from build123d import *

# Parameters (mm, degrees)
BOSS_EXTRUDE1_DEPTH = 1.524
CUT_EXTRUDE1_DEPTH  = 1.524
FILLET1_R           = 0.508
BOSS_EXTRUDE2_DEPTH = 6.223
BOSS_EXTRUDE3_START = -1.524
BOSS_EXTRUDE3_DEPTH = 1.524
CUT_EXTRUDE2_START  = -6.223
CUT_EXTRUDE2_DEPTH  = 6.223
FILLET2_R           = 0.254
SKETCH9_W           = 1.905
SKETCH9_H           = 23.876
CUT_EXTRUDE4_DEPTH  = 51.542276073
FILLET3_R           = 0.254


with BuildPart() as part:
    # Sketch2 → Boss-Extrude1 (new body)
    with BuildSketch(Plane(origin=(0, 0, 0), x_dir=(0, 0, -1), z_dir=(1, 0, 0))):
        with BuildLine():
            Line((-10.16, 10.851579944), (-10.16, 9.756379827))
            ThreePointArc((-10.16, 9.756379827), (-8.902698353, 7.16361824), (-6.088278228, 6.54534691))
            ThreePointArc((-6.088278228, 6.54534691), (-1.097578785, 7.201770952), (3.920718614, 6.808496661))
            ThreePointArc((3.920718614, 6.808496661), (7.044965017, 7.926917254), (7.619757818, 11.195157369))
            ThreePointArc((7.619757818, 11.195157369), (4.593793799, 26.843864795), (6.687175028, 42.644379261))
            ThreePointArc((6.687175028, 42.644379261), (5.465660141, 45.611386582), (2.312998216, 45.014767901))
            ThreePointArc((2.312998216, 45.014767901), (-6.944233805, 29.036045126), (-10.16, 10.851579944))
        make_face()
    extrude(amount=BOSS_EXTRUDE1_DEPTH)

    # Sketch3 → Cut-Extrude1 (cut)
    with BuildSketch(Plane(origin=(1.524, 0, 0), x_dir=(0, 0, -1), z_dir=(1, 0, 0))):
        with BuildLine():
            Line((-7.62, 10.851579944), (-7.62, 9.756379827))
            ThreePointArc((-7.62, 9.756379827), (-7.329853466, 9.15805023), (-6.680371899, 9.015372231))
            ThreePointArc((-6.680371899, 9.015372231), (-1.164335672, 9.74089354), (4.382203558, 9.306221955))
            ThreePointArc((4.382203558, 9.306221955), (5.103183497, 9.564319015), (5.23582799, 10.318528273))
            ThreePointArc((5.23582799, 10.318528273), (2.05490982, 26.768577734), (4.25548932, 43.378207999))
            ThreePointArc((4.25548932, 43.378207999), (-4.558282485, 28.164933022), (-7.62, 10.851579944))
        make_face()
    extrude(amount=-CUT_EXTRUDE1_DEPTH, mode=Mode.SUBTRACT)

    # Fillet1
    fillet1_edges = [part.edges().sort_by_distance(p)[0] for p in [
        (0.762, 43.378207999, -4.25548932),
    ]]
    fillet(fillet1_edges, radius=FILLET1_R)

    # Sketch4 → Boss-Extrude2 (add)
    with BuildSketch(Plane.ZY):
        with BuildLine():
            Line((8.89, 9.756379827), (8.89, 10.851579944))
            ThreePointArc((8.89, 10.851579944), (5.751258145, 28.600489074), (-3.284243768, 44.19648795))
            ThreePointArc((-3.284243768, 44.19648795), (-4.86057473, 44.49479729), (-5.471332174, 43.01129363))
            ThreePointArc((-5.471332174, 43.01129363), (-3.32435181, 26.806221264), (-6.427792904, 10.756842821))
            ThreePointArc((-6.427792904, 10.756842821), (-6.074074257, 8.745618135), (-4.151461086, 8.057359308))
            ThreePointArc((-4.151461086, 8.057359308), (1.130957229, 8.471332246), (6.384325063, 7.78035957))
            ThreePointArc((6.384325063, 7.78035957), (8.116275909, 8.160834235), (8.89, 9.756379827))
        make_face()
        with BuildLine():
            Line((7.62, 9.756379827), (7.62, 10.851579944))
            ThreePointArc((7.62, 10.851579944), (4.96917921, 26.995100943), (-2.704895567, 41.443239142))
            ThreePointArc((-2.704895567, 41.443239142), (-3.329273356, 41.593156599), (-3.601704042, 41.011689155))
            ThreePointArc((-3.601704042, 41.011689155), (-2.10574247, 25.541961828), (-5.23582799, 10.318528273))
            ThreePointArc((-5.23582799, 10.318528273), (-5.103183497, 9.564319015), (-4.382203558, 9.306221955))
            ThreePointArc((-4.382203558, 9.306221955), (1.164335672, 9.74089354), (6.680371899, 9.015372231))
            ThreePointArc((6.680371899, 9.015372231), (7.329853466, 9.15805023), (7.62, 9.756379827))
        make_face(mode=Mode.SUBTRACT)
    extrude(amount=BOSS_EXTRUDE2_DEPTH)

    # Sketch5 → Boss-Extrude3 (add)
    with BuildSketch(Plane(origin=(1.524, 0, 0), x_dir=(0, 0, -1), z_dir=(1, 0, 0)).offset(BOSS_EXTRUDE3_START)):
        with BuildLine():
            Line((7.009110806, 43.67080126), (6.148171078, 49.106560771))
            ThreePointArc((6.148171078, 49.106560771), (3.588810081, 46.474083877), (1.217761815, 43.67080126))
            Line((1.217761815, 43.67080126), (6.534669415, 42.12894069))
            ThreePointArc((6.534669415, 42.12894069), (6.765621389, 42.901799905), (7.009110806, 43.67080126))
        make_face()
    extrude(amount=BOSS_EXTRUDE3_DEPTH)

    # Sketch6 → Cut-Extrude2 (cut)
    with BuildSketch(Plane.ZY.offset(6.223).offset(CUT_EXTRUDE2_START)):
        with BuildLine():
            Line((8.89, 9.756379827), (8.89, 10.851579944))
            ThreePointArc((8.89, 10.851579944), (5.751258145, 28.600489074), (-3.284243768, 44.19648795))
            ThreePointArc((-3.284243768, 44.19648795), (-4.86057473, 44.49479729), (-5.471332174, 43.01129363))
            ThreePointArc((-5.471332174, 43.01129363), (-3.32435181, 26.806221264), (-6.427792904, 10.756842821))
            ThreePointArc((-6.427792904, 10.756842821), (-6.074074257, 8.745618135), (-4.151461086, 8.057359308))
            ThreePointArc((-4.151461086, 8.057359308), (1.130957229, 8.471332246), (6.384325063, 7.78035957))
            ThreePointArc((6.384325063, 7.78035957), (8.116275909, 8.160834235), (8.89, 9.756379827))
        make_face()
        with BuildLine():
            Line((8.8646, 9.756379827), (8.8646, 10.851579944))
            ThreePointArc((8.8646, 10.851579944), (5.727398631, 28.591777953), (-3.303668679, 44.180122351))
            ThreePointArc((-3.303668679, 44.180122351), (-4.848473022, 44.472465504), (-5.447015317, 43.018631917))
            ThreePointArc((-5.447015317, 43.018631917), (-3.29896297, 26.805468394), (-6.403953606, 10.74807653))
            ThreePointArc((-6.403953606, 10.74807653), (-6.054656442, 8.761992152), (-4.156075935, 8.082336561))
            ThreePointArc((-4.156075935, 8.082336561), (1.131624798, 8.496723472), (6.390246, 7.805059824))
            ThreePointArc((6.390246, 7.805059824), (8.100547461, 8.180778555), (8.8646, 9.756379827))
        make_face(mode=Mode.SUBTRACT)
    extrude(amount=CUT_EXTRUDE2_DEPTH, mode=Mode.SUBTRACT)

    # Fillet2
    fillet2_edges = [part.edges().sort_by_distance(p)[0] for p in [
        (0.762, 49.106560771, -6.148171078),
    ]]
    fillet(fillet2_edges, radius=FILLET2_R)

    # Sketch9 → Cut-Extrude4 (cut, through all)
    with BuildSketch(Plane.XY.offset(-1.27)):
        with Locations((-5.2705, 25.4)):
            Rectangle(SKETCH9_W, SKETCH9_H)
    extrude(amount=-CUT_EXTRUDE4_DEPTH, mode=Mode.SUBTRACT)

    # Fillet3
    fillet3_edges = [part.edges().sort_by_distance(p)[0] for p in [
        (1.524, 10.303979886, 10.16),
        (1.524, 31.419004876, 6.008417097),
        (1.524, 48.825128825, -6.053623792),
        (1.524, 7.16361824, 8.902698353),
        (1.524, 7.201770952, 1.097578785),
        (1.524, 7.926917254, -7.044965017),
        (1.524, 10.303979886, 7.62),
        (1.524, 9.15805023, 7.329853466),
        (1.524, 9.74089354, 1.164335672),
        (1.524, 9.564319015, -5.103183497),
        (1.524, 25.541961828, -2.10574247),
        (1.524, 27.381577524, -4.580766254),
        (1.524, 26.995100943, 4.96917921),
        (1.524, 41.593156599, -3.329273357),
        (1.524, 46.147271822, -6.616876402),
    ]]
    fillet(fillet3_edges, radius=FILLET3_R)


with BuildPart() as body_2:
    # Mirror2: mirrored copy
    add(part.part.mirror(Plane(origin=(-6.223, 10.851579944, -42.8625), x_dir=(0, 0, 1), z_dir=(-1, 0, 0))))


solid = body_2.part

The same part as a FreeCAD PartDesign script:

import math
import FreeCAD as App
import Part
import Sketcher
Q = App.Units.Quantity


def edges_at(feature, points):
    """Names of the edges that pass closest to the given points."""
    edges = feature.Shape.Edges
    near = lambda p: min(range(len(edges)), key=lambda i: edges[i].distToShape(Part.Vertex(*p))[0])
    return sorted({f"Edge{near(p) + 1}" for p in points})


def add_polygon(sketch, points):
    """Adds a closed chain of lines whose ends are joined by coincident constraints."""
    first, n = sketch.GeometryCount, len(points)
    for a, b in zip(points, points[1:] + points[:1]):
        sketch.addGeometry(Part.LineSegment(App.Vector(*a, 0), App.Vector(*b, 0)), False)
    for i in range(n):
        sketch.addConstraint(Sketcher.Constraint("Coincident", first + i, 2, first + (i + 1) % n, 1))

doc = App.newDocument("Part")
params = doc.addObject("Spreadsheet::Sheet", "Params")
for row, (alias, value) in enumerate([
    ("sketch1_radius", "0.1 in"),
    ("sketch1_radius2", "0.13 in"),
    ("sketch1_radius3", "0.95 in"),
    ("pad1_length", "0.06 in"),
    ("sketch2_radius", "0.03 in"),
    ("sketch2_radius2", "1.05 in"),
    ("pocket1_length", "0.06 in"),
    ("fillet_radius", "0.02 in"),
    ("sketch3_radius", "1 in"),
    ("sketch3_radius2", "0.05 in"),
    ("sketch3_radius3", "0.08 in"),
    ("sketch3_radius4", "0.03 in"),
    ("sketch3_radius5", "0.02 in"),
    ("pad2_length", "0.245 in"),
    ("pad3_length", "0.06 in"),
    ("sketch5_radius", "1 in"),
    ("sketch5_radius2", "0.05 in"),
    ("sketch5_radius3", "0.08 in"),
    ("sketch5_radius4", "0.079 in"),
    ("pocket2_length", "0.245 in"),
    ("fillet2_radius", "0.01 in"),
    ("sketch6_height", "0.94 in"),
    ("sketch6_width", "0.075 in"),
    ("fillet3_radius", "0.01 in"),
], start=1):
    params.set(f"A{row}", alias)
    params.set(f"B{row}", "=" + value)
    params.setAlias(f"B{row}", alias)

body = doc.addObject("PartDesign::Body", "Body")

sketch1 = body.newObject("Sketcher::SketchObject", "Sketch")
sketch1.AttachmentSupport = (doc.getObject("YZ_Plane"), [""])
sketch1.MapMode = "FlatFace"
sketch1.addGeometry([
    Part.LineSegment(App.Vector(10.9, 10.2, 0), App.Vector(9.8, 10.2, 0)),
    Part.ArcOfCircle(Part.Circle(App.Vector(9.8, 6.9, 0), App.Vector(0, 0, 1), 3.3), math.radians(90), math.radians(193)),
    Part.ArcOfCircle(Part.Circle(App.Vector(-16.9, 0.5, 0), App.Vector(0, 0, 1), 24.1), math.radians(-10), math.radians(13)),
    Part.ArcOfCircle(Part.Circle(App.Vector(10.1, -4.5, 0), App.Vector(0, 0, 1), 3.3), math.radians(170), math.radians(290)),
    Part.ArcOfCircle(Part.Circle(App.Vector(28.3, -54.2, 0), App.Vector(0, 0, 1), 49.6), math.radians(73), math.radians(110)),
    Part.ArcOfCircle(Part.Circle(App.Vector(43.4, -4.3, 0), App.Vector(0, 0, 1), 2.5), math.radians(-107), math.radians(50)),
    Part.ArcOfCircle(Part.Circle(App.Vector(10.9, -42.9, 0), App.Vector(0, 0, 1), 53), math.radians(50), math.radians(90)),
], False)
sketch1.addConstraint([
    Sketcher.Constraint("Tangent", 0, 2, 1, 1),
    Sketcher.Constraint("Tangent", 1, 2, 2, 2),
    Sketcher.Constraint("Tangent", 2, 1, 3, 1),
    Sketcher.Constraint("Tangent", 3, 2, 4, 2),
    Sketcher.Constraint("Tangent", 4, 1, 5, 1),
    Sketcher.Constraint("Tangent", 5, 2, 6, 1),
    Sketcher.Constraint("Tangent", 6, 2, 0, 1),
    Sketcher.Constraint("Horizontal", 0),
    Sketcher.Constraint("Equal", 1, 3),
    Sketcher.Constraint("Radius", 5, Q("0.1 in")),
    Sketcher.Constraint("Radius", 1, Q("0.13 in")),
    Sketcher.Constraint("Radius", 2, Q("0.95 in")),
    Sketcher.Constraint("DistanceY", -1, 1, 0, 2, Q("0.4 in")),
    Sketcher.Constraint("Radius", 6, Q("2.0875 in")),
    Sketcher.Constraint("DistanceX", 6, 3, 4, 3, Q("0.6875 in")),
    Sketcher.Constraint("DistanceX", 0, 2, 0, 1, Q("1.0952 mm")),
    Sketcher.Constraint("Radius", 4, Q("49.601437 mm")),
    Sketcher.Constraint("DistanceY", 5, 2, -1, 1, Q("2.312998 mm")),
    Sketcher.Constraint("DistanceX", 2, 3, 5, 3, Q("60.298102 mm")),
    Sketcher.Constraint("DistanceX", -1, 1, 1, 3, Q("9.75638 mm")),
])
sketch1.setExpression("Constraints[9]", "Params.sketch1_radius")
sketch1.setExpression("Constraints[10]", "Params.sketch1_radius2")
sketch1.setExpression("Constraints[11]", "Params.sketch1_radius3")
pad1 = body.newObject("PartDesign::Pad", "Pad")
pad1.Profile = sketch1
pad1.setExpression("Length", "Params.pad1_length")

sketch2 = body.newObject("Sketcher::SketchObject", "Sketch001")
sketch2.AttachmentSupport = (doc.getObject("YZ_Plane"), [""])
sketch2.MapMode = "FlatFace"
sketch2.AttachmentOffset = App.Placement(App.Vector(0, 0, 0.06 * 25.4), App.Rotation())
sketch2.addGeometry([
    Part.LineSegment(App.Vector(10.9, 7.6, 0), App.Vector(9.8, 7.6, 0)),
    Part.ArcOfCircle(Part.Circle(App.Vector(9.8, 6.9, 0), App.Vector(0, 0, 1), 0.8), math.radians(90), math.radians(193)),
    Part.ArcOfCircle(Part.Circle(App.Vector(-16.9, 0.5, 0), App.Vector(0, 0, 1), 26.7), math.radians(-10), math.radians(13)),
    Part.ArcOfCircle(Part.Circle(App.Vector(10.1, -4.5, 0), App.Vector(0, 0, 1), 0.8), math.radians(170), math.radians(290)),
    Part.ArcOfCircle(Part.Circle(App.Vector(28.3, -54.2, 0), App.Vector(0, 0, 1), 52.1), math.radians(73), math.radians(110)),
    Part.ArcOfCircle(Part.Circle(App.Vector(10.9, -42.9, 0), App.Vector(0, 0, 1), 50.5), math.radians(50), math.radians(90)),
], False)
sketch2.addConstraint([
    Sketcher.Constraint("Tangent", 0, 2, 1, 1),
    Sketcher.Constraint("Tangent", 1, 2, 2, 2),
    Sketcher.Constraint("Tangent", 2, 1, 3, 1),
    Sketcher.Constraint("Tangent", 3, 2, 4, 2),
    Sketcher.Constraint("Coincident", 4, 1, 5, 1),
    Sketcher.Constraint("Tangent", 5, 2, 0, 1),
    Sketcher.Constraint("Horizontal", 0),
    Sketcher.Constraint("Equal", 1, 3),
    Sketcher.Constraint("Radius", 1, Q("0.03 in")),
    Sketcher.Constraint("Radius", 2, Q("1.05 in")),
    Sketcher.Constraint("DistanceY", -1, 1, 0, 2, Q("0.3 in")),
    Sketcher.Constraint("Radius", 5, Q("1.9875 in")),
    Sketcher.Constraint("DistanceX", 5, 3, 4, 3, Q("0.6875 in")),
    Sketcher.Constraint("DistanceX", 0, 2, 0, 1, Q("1.0952 mm")),
    Sketcher.Constraint("Radius", 4, Q("52.141437 mm")),
    Sketcher.Constraint("DistanceY", 3, 2, 1, 2, Q("11.9162 mm")),
    Sketcher.Constraint("DistanceX", -1, 1, 1, 3, Q("9.75638 mm")),
    Sketcher.Constraint("DistanceY", -1, 1, 2, 3, Q("0.463388 mm")),
])
sketch2.setExpression("Constraints[8]", "Params.sketch2_radius")
sketch2.setExpression("Constraints[9]", "Params.sketch2_radius2")
pocket1 = body.newObject("PartDesign::Pocket", "Pocket")
pocket1.Profile = sketch2
pocket1.setExpression("Length", "Params.pocket1_length")
doc.recompute()

fillet = body.newObject("PartDesign::Fillet", "Fillet")
fillet.Base = (pocket1, edges_at(pocket1, [(0.762, 43.378, -4.255)]))
fillet.setExpression("Radius", "Params.fillet_radius")

sketch3 = body.newObject("Sketcher::SketchObject", "Sketch002")
sketch3.AttachmentSupport = (doc.getObject("YZ_Plane"), [""])
sketch3.MapMode = "FlatFace"
sketch3.addGeometry([
    Part.LineSegment(App.Vector(9.8, 8.9, 0), App.Vector(10.9, 8.9, 0)),
    Part.ArcOfCircle(Part.Circle(App.Vector(10.9, -42.9, 0), App.Vector(0, 0, 1), 51.8), math.radians(50), math.radians(90)),
    Part.ArcOfCircle(Part.Circle(App.Vector(43.4, -4.3, 0), App.Vector(0, 0, 1), 1.3), math.radians(-107), math.radians(50)),
    Part.ArcOfCircle(Part.Circle(App.Vector(28.3, -54.2, 0), App.Vector(0, 0, 1), 50.9), math.radians(73), math.radians(110)),
    Part.ArcOfCircle(Part.Circle(App.Vector(10.1, -4.5, 0), App.Vector(0, 0, 1), 2), math.radians(170), math.radians(290)),
    Part.ArcOfCircle(Part.Circle(App.Vector(-16.9, 0.5, 0), App.Vector(0, 0, 1), 25.4), math.radians(-10), math.radians(13)),
    Part.ArcOfCircle(Part.Circle(App.Vector(9.8, 6.9, 0), App.Vector(0, 0, 1), 2), math.radians(90), math.radians(193)),
    Part.LineSegment(App.Vector(10.9, 7.6, 0), App.Vector(9.8, 7.6, 0)),
    Part.ArcOfCircle(Part.Circle(App.Vector(9.8, 6.9, 0), App.Vector(0, 0, 1), 0.8), math.radians(90), math.radians(193)),
    Part.ArcOfCircle(Part.Circle(App.Vector(-16.9, 0.5, 0), App.Vector(0, 0, 1), 26.7), math.radians(-10), math.radians(13)),
    Part.ArcOfCircle(Part.Circle(App.Vector(10.1, -4.5, 0), App.Vector(0, 0, 1), 0.8), math.radians(170), math.radians(290)),
    Part.ArcOfCircle(Part.Circle(App.Vector(28.3, -54.2, 0), App.Vector(0, 0, 1), 52.1), math.radians(76), math.radians(110)),
    Part.ArcOfCircle(Part.Circle(App.Vector(41.1, -3.1, 0), App.Vector(0, 0, 1), 0.5), math.radians(-104), math.radians(53)),
    Part.ArcOfCircle(Part.Circle(App.Vector(10.9, -42.9, 0), App.Vector(0, 0, 1), 50.5), math.radians(53), math.radians(90)),
], False)
sketch3.addConstraint([
    Sketcher.Constraint("Tangent", 0, 2, 1, 2),
    Sketcher.Constraint("Tangent", 1, 1, 2, 2),
    Sketcher.Constraint("Tangent", 2, 1, 3, 1),
    Sketcher.Constraint("Tangent", 3, 2, 4, 2),
    Sketcher.Constraint("Tangent", 4, 1, 5, 1),
    Sketcher.Constraint("Tangent", 5, 2, 6, 2),
    Sketcher.Constraint("Tangent", 6, 1, 0, 1),
    Sketcher.Constraint("Tangent", 7, 2, 8, 1),
    Sketcher.Constraint("Tangent", 8, 2, 9, 2),
    Sketcher.Constraint("Tangent", 9, 1, 10, 1),
    Sketcher.Constraint("Tangent", 10, 2, 11, 2),
    Sketcher.Constraint("Tangent", 11, 1, 12, 1),
    Sketcher.Constraint("Tangent", 12, 2, 13, 1),
    Sketcher.Constraint("Tangent", 13, 2, 7, 1),
    Sketcher.Constraint("Horizontal", 0),
    Sketcher.Constraint("Horizontal", 7),
    Sketcher.Constraint("Coincident", 8, 3, 6, 3),
    Sketcher.Constraint("Coincident", 9, 3, 5, 3),
    Sketcher.Constraint("Coincident", 10, 3, 4, 3),
    Sketcher.Constraint("Coincident", 11, 3, 3, 3),
    Sketcher.Constraint("Coincident", 13, 3, 1, 3),
    Sketcher.Constraint("Equal", 4, 6),
    Sketcher.Constraint("Radius", 5, Q("1 in")),
    Sketcher.Constraint("Radius", 2, Q("0.05 in")),
    Sketcher.Constraint("Radius", 4, Q("0.08 in")),
    Sketcher.Constraint("Radius", 8, Q("0.03 in")),
    Sketcher.Constraint("Radius", 12, Q("0.02 in")),
    Sketcher.Constraint("DistanceY", -1, 1, 7, 2, Q("0.3 in")),
    Sketcher.Constraint("Radius", 1, Q("2.0375 in")),
    Sketcher.Constraint("DistanceX", 1, 3, 3, 3, Q("0.6875 in")),
    Sketcher.Constraint("DistanceX", 0, 1, 0, 2, Q("1.0952 mm")),
    Sketcher.Constraint("Radius", 3, Q("50.871437 mm")),
    Sketcher.Constraint("DistanceX", -1, 1, 12, 3, Q("41.135399 mm")),
    Sketcher.Constraint("DistanceX", 5, 3, 2, 3, Q("60.298102 mm")),
    Sketcher.Constraint("DistanceX", 5, 2, 4, 1, Q("0.277 mm")),
])
sketch3.setExpression("Constraints[22]", "Params.sketch3_radius")
sketch3.setExpression("Constraints[23]", "Params.sketch3_radius2")
sketch3.setExpression("Constraints[24]", "Params.sketch3_radius3")
sketch3.setExpression("Constraints[25]", "Params.sketch3_radius4")
sketch3.setExpression("Constraints[26]", "Params.sketch3_radius5")
pad2 = body.newObject("PartDesign::Pad", "Pad001")
pad2.Profile = sketch3
pad2.setExpression("Length", "Params.pad2_length")
pad2.Reversed = True

sketch4 = body.newObject("Sketcher::SketchObject", "Sketch003")
sketch4.AttachmentSupport = (doc.getObject("YZ_Plane"), [""])
sketch4.MapMode = "FlatFace"
sketch4.addGeometry([
    Part.LineSegment(App.Vector(43.7, -7, 0), App.Vector(49.1, -6.1, 0)),
    Part.ArcOfCircle(Part.Circle(App.Vector(10.9, -42.9, 0), App.Vector(0, 0, 1), 53), math.radians(43.82), math.radians(51.76)),
    Part.LineSegment(App.Vector(43.7, -1.2, 0), App.Vector(42.1, -6.5, 0)),
    Part.ArcOfCircle(Part.Circle(App.Vector(28.3, -54.2, 0), App.Vector(0, 0, 1), 49.6), math.radians(71.96), math.radians(73.83)),
], False)
sketch4.addConstraint([
    Sketcher.Constraint("Coincident", 0, 2, 1, 1),
    Sketcher.Constraint("Coincident", 1, 2, 2, 1),
    Sketcher.Constraint("Coincident", 2, 2, 3, 2),
    Sketcher.Constraint("Coincident", 3, 1, 0, 1),
    Sketcher.Constraint("Vertical", 1, 2, 3, 1),
    Sketcher.Constraint("Angle", 0, Q("9 deg")),
    Sketcher.Constraint("Radius", 1, Q("2.0875 in")),
    Sketcher.Constraint("DistanceY", 1, 3, -1, 1, Q("1.6875 in")),
    Sketcher.Constraint("Radius", 3, Q("49.601438 mm")),
    Sketcher.Constraint("DistanceX", 1, 3, 3, 3, Q("0.6875 in")),
    Sketcher.Constraint("DistanceX", -1, 1, 1, 2, Q("43.670801 mm")),
    Sketcher.Constraint("DistanceY", 2, 2, 0, 2, Q("0.386498 mm")),
    Sketcher.Constraint("Distance", 2, Q("5.535959 mm")),
    Sketcher.Constraint("DistanceX", -1, 1, 1, 3, Q("10.85158 mm")),
])
pad3 = body.newObject("PartDesign::Pad", "Pad002")
pad3.Profile = sketch4
pad3.setExpression("Length", "Params.pad3_length")

sketch5 = body.newObject("Sketcher::SketchObject", "Sketch004")
sketch5.AttachmentSupport = (doc.getObject("YZ_Plane"), [""])
sketch5.MapMode = "FlatFace"
sketch5.addGeometry([
    Part.LineSegment(App.Vector(9.8, 8.9, 0), App.Vector(10.9, 8.9, 0)),
    Part.ArcOfCircle(Part.Circle(App.Vector(10.9, -42.9, 0), App.Vector(0, 0, 1), 51.8), math.radians(50), math.radians(90)),
    Part.ArcOfCircle(Part.Circle(App.Vector(43.4, -4.3, 0), App.Vector(0, 0, 1), 1.3), math.radians(-107), math.radians(50)),
    Part.ArcOfCircle(Part.Circle(App.Vector(28.3, -54.2, 0), App.Vector(0, 0, 1), 50.9), math.radians(73), math.radians(110)),
    Part.ArcOfCircle(Part.Circle(App.Vector(10.1, -4.5, 0), App.Vector(0, 0, 1), 2), math.radians(170), math.radians(290)),
    Part.ArcOfCircle(Part.Circle(App.Vector(-16.9, 0.5, 0), App.Vector(0, 0, 1), 25.4), math.radians(-10), math.radians(13)),
    Part.ArcOfCircle(Part.Circle(App.Vector(9.8, 6.9, 0), App.Vector(0, 0, 1), 2), math.radians(90), math.radians(193)),
    Part.LineSegment(App.Vector(10.9, 8.9, 0), App.Vector(9.8, 8.9, 0)),
    Part.ArcOfCircle(Part.Circle(App.Vector(9.8, 6.9, 0), App.Vector(0, 0, 1), 2), math.radians(90), math.radians(193)),
    Part.ArcOfCircle(Part.Circle(App.Vector(-16.9, 0.5, 0), App.Vector(0, 0, 1), 25.4), math.radians(-10), math.radians(13)),
    Part.ArcOfCircle(Part.Circle(App.Vector(10.1, -4.5, 0), App.Vector(0, 0, 1), 2), math.radians(170), math.radians(290)),
    Part.ArcOfCircle(Part.Circle(App.Vector(28.3, -54.2, 0), App.Vector(0, 0, 1), 50.9), math.radians(73), math.radians(110)),
    Part.ArcOfCircle(Part.Circle(App.Vector(43.4, -4.3, 0), App.Vector(0, 0, 1), 1.2), math.radians(-107), math.radians(50)),
    Part.ArcOfCircle(Part.Circle(App.Vector(10.9, -42.9, 0), App.Vector(0, 0, 1), 51.7), math.radians(50), math.radians(90)),
], False)
sketch5.addConstraint([
    Sketcher.Constraint("Tangent", 0, 2, 1, 2),
    Sketcher.Constraint("Tangent", 1, 1, 2, 2),
    Sketcher.Constraint("Tangent", 2, 1, 3, 1),
    Sketcher.Constraint("Tangent", 3, 2, 4, 2),
    Sketcher.Constraint("Tangent", 4, 1, 5, 1),
    Sketcher.Constraint("Tangent", 5, 2, 6, 2),
    Sketcher.Constraint("Tangent", 6, 1, 0, 1),
    Sketcher.Constraint("Tangent", 7, 2, 8, 1),
    Sketcher.Constraint("Tangent", 8, 2, 9, 2),
    Sketcher.Constraint("Tangent", 9, 1, 10, 1),
    Sketcher.Constraint("Tangent", 10, 2, 11, 2),
    Sketcher.Constraint("Tangent", 11, 1, 12, 1),
    Sketcher.Constraint("Tangent", 12, 2, 13, 1),
    Sketcher.Constraint("Tangent", 13, 2, 7, 1),
    Sketcher.Constraint("Horizontal", 0),
    Sketcher.Constraint("Horizontal", 7),
    Sketcher.Constraint("Coincident", 8, 3, 6, 3),
    Sketcher.Constraint("Coincident", 9, 3, 5, 3),
    Sketcher.Constraint("Coincident", 10, 3, 4, 3),
    Sketcher.Constraint("Coincident", 11, 3, 3, 3),
    Sketcher.Constraint("Coincident", 12, 3, 2, 3),
    Sketcher.Constraint("Equal", 4, 6),
    Sketcher.Constraint("Vertical", 13, 3, 0, 2),
    Sketcher.Constraint("Radius", 5, Q("1 in")),
    Sketcher.Constraint("Radius", 2, Q("0.05 in")),
    Sketcher.Constraint("Radius", 4, Q("0.08 in")),
    Sketcher.Constraint("Radius", 8, Q("0.079 in")),
    Sketcher.Constraint("Radius", 1, Q("2.0375 in")),
    Sketcher.Constraint("DistanceY", -1, 1, 6, 3, Q("0.27 in")),
    Sketcher.Constraint("DistanceX", 1, 3, 3, 3, Q("0.6875 in")),
    Sketcher.Constraint("DistanceX", 0, 1, 0, 2, Q("1.0952 mm")),
    Sketcher.Constraint("Radius", 3, Q("50.871437 mm")),
    Sketcher.Constraint("DistanceX", 5, 3, 2, 3, Q("60.298102 mm")),
    Sketcher.Constraint("DistanceX", 5, 2, 4, 1, Q("0.277 mm")),
    Sketcher.Constraint("DistanceX", -1, 1, 1, 3, Q("10.85158 mm")),
])
sketch5.setExpression("Constraints[23]", "Params.sketch5_radius")
sketch5.setExpression("Constraints[24]", "Params.sketch5_radius2")
sketch5.setExpression("Constraints[25]", "Params.sketch5_radius3")
sketch5.setExpression("Constraints[26]", "Params.sketch5_radius4")
pocket2 = body.newObject("PartDesign::Pocket", "Pocket001")
pocket2.Profile = sketch5
pocket2.setExpression("Length", "Params.pocket2_length")
doc.recompute()

fillet2 = body.newObject("PartDesign::Fillet", "Fillet001")
fillet2.Base = (pocket2, edges_at(pocket2, [(0.762, 49.107, -6.148)]))
fillet2.setExpression("Radius", "Params.fillet2_radius")

sketch6 = body.newObject("Sketcher::SketchObject", "Sketch005")
sketch6.AttachmentSupport = (doc.getObject("XY_Plane"), [""])
sketch6.MapMode = "FlatFace"
sketch6.AttachmentOffset = App.Placement(App.Vector(0, 0, -0.05 * 25.4), App.Rotation())
add_polygon(sketch6, [(-6.2, 37.3), (-6.2, 13.5), (-4.3, 13.5), (-4.3, 37.3)])
sketch6.addConstraint([
    Sketcher.Constraint("Vertical", 0),
    Sketcher.Constraint("Horizontal", 1),
    Sketcher.Constraint("Vertical", 2),
    Sketcher.Constraint("Horizontal", 3),
    Sketcher.Constraint("DistanceY", 0, 2, 0, 1, Q("0.94 in")),
    Sketcher.Constraint("DistanceX", 1, 1, 1, 2, Q("0.075 in")),
    Sketcher.Constraint("DistanceY", -1, 1, 0, 2, Q("0.53 in")),
    Sketcher.Constraint("DistanceX", 1, 2, -1, 1, Q("0.17 in")),
])
sketch6.setExpression("Constraints[8]", "Params.sketch6_height")
sketch6.setExpression("Constraints[9]", "Params.sketch6_width")
pocket3 = body.newObject("PartDesign::Pocket", "Pocket002")
pocket3.Profile = sketch6
pocket3.Type = "ThroughAll"
doc.recompute()

fillet3 = body.newObject("PartDesign::Fillet", "Fillet002")
fillet3.Base = (pocket3, edges_at(pocket3, [
    (1.524, 10.304, 10.16),
    (1.524, 29.036, 6.944),
    (1.524, 48.825, -6.054),
    (1.524, 7.164, 8.903),
    (1.524, 7.202, 1.098),
    (1.524, 7.927, -7.045),
    (1.524, 10.304, 7.62),
    (1.524, 9.158, 7.33),
    (1.524, 9.741, 1.164),
    (1.524, 9.564, -5.103),
    (1.524, 25.542, -2.106),
    (1.524, 26.844, -4.594),
    (1.524, 26.995, 4.969),
    (1.524, 41.593, -3.329),
    (1.524, 46.147, -6.617),
]))
fillet3.setExpression("Radius", "Params.fillet3_radius")
body2 = doc.addObject("PartDesign::Body", "Body001")
doc.recompute()

mirroring = doc.addObject("Part::Mirroring", "Mirroring")
mirroring.Source = body
mirroring.Base = App.Vector(-6.223, 10.85158, -42.8625)
mirroring.Normal = App.Vector(-1, 0, 0)
body2.BaseFeature = mirroring
doc.recompute()
body.Visibility = False
mirroring.Visibility = False

doc.recompute()
